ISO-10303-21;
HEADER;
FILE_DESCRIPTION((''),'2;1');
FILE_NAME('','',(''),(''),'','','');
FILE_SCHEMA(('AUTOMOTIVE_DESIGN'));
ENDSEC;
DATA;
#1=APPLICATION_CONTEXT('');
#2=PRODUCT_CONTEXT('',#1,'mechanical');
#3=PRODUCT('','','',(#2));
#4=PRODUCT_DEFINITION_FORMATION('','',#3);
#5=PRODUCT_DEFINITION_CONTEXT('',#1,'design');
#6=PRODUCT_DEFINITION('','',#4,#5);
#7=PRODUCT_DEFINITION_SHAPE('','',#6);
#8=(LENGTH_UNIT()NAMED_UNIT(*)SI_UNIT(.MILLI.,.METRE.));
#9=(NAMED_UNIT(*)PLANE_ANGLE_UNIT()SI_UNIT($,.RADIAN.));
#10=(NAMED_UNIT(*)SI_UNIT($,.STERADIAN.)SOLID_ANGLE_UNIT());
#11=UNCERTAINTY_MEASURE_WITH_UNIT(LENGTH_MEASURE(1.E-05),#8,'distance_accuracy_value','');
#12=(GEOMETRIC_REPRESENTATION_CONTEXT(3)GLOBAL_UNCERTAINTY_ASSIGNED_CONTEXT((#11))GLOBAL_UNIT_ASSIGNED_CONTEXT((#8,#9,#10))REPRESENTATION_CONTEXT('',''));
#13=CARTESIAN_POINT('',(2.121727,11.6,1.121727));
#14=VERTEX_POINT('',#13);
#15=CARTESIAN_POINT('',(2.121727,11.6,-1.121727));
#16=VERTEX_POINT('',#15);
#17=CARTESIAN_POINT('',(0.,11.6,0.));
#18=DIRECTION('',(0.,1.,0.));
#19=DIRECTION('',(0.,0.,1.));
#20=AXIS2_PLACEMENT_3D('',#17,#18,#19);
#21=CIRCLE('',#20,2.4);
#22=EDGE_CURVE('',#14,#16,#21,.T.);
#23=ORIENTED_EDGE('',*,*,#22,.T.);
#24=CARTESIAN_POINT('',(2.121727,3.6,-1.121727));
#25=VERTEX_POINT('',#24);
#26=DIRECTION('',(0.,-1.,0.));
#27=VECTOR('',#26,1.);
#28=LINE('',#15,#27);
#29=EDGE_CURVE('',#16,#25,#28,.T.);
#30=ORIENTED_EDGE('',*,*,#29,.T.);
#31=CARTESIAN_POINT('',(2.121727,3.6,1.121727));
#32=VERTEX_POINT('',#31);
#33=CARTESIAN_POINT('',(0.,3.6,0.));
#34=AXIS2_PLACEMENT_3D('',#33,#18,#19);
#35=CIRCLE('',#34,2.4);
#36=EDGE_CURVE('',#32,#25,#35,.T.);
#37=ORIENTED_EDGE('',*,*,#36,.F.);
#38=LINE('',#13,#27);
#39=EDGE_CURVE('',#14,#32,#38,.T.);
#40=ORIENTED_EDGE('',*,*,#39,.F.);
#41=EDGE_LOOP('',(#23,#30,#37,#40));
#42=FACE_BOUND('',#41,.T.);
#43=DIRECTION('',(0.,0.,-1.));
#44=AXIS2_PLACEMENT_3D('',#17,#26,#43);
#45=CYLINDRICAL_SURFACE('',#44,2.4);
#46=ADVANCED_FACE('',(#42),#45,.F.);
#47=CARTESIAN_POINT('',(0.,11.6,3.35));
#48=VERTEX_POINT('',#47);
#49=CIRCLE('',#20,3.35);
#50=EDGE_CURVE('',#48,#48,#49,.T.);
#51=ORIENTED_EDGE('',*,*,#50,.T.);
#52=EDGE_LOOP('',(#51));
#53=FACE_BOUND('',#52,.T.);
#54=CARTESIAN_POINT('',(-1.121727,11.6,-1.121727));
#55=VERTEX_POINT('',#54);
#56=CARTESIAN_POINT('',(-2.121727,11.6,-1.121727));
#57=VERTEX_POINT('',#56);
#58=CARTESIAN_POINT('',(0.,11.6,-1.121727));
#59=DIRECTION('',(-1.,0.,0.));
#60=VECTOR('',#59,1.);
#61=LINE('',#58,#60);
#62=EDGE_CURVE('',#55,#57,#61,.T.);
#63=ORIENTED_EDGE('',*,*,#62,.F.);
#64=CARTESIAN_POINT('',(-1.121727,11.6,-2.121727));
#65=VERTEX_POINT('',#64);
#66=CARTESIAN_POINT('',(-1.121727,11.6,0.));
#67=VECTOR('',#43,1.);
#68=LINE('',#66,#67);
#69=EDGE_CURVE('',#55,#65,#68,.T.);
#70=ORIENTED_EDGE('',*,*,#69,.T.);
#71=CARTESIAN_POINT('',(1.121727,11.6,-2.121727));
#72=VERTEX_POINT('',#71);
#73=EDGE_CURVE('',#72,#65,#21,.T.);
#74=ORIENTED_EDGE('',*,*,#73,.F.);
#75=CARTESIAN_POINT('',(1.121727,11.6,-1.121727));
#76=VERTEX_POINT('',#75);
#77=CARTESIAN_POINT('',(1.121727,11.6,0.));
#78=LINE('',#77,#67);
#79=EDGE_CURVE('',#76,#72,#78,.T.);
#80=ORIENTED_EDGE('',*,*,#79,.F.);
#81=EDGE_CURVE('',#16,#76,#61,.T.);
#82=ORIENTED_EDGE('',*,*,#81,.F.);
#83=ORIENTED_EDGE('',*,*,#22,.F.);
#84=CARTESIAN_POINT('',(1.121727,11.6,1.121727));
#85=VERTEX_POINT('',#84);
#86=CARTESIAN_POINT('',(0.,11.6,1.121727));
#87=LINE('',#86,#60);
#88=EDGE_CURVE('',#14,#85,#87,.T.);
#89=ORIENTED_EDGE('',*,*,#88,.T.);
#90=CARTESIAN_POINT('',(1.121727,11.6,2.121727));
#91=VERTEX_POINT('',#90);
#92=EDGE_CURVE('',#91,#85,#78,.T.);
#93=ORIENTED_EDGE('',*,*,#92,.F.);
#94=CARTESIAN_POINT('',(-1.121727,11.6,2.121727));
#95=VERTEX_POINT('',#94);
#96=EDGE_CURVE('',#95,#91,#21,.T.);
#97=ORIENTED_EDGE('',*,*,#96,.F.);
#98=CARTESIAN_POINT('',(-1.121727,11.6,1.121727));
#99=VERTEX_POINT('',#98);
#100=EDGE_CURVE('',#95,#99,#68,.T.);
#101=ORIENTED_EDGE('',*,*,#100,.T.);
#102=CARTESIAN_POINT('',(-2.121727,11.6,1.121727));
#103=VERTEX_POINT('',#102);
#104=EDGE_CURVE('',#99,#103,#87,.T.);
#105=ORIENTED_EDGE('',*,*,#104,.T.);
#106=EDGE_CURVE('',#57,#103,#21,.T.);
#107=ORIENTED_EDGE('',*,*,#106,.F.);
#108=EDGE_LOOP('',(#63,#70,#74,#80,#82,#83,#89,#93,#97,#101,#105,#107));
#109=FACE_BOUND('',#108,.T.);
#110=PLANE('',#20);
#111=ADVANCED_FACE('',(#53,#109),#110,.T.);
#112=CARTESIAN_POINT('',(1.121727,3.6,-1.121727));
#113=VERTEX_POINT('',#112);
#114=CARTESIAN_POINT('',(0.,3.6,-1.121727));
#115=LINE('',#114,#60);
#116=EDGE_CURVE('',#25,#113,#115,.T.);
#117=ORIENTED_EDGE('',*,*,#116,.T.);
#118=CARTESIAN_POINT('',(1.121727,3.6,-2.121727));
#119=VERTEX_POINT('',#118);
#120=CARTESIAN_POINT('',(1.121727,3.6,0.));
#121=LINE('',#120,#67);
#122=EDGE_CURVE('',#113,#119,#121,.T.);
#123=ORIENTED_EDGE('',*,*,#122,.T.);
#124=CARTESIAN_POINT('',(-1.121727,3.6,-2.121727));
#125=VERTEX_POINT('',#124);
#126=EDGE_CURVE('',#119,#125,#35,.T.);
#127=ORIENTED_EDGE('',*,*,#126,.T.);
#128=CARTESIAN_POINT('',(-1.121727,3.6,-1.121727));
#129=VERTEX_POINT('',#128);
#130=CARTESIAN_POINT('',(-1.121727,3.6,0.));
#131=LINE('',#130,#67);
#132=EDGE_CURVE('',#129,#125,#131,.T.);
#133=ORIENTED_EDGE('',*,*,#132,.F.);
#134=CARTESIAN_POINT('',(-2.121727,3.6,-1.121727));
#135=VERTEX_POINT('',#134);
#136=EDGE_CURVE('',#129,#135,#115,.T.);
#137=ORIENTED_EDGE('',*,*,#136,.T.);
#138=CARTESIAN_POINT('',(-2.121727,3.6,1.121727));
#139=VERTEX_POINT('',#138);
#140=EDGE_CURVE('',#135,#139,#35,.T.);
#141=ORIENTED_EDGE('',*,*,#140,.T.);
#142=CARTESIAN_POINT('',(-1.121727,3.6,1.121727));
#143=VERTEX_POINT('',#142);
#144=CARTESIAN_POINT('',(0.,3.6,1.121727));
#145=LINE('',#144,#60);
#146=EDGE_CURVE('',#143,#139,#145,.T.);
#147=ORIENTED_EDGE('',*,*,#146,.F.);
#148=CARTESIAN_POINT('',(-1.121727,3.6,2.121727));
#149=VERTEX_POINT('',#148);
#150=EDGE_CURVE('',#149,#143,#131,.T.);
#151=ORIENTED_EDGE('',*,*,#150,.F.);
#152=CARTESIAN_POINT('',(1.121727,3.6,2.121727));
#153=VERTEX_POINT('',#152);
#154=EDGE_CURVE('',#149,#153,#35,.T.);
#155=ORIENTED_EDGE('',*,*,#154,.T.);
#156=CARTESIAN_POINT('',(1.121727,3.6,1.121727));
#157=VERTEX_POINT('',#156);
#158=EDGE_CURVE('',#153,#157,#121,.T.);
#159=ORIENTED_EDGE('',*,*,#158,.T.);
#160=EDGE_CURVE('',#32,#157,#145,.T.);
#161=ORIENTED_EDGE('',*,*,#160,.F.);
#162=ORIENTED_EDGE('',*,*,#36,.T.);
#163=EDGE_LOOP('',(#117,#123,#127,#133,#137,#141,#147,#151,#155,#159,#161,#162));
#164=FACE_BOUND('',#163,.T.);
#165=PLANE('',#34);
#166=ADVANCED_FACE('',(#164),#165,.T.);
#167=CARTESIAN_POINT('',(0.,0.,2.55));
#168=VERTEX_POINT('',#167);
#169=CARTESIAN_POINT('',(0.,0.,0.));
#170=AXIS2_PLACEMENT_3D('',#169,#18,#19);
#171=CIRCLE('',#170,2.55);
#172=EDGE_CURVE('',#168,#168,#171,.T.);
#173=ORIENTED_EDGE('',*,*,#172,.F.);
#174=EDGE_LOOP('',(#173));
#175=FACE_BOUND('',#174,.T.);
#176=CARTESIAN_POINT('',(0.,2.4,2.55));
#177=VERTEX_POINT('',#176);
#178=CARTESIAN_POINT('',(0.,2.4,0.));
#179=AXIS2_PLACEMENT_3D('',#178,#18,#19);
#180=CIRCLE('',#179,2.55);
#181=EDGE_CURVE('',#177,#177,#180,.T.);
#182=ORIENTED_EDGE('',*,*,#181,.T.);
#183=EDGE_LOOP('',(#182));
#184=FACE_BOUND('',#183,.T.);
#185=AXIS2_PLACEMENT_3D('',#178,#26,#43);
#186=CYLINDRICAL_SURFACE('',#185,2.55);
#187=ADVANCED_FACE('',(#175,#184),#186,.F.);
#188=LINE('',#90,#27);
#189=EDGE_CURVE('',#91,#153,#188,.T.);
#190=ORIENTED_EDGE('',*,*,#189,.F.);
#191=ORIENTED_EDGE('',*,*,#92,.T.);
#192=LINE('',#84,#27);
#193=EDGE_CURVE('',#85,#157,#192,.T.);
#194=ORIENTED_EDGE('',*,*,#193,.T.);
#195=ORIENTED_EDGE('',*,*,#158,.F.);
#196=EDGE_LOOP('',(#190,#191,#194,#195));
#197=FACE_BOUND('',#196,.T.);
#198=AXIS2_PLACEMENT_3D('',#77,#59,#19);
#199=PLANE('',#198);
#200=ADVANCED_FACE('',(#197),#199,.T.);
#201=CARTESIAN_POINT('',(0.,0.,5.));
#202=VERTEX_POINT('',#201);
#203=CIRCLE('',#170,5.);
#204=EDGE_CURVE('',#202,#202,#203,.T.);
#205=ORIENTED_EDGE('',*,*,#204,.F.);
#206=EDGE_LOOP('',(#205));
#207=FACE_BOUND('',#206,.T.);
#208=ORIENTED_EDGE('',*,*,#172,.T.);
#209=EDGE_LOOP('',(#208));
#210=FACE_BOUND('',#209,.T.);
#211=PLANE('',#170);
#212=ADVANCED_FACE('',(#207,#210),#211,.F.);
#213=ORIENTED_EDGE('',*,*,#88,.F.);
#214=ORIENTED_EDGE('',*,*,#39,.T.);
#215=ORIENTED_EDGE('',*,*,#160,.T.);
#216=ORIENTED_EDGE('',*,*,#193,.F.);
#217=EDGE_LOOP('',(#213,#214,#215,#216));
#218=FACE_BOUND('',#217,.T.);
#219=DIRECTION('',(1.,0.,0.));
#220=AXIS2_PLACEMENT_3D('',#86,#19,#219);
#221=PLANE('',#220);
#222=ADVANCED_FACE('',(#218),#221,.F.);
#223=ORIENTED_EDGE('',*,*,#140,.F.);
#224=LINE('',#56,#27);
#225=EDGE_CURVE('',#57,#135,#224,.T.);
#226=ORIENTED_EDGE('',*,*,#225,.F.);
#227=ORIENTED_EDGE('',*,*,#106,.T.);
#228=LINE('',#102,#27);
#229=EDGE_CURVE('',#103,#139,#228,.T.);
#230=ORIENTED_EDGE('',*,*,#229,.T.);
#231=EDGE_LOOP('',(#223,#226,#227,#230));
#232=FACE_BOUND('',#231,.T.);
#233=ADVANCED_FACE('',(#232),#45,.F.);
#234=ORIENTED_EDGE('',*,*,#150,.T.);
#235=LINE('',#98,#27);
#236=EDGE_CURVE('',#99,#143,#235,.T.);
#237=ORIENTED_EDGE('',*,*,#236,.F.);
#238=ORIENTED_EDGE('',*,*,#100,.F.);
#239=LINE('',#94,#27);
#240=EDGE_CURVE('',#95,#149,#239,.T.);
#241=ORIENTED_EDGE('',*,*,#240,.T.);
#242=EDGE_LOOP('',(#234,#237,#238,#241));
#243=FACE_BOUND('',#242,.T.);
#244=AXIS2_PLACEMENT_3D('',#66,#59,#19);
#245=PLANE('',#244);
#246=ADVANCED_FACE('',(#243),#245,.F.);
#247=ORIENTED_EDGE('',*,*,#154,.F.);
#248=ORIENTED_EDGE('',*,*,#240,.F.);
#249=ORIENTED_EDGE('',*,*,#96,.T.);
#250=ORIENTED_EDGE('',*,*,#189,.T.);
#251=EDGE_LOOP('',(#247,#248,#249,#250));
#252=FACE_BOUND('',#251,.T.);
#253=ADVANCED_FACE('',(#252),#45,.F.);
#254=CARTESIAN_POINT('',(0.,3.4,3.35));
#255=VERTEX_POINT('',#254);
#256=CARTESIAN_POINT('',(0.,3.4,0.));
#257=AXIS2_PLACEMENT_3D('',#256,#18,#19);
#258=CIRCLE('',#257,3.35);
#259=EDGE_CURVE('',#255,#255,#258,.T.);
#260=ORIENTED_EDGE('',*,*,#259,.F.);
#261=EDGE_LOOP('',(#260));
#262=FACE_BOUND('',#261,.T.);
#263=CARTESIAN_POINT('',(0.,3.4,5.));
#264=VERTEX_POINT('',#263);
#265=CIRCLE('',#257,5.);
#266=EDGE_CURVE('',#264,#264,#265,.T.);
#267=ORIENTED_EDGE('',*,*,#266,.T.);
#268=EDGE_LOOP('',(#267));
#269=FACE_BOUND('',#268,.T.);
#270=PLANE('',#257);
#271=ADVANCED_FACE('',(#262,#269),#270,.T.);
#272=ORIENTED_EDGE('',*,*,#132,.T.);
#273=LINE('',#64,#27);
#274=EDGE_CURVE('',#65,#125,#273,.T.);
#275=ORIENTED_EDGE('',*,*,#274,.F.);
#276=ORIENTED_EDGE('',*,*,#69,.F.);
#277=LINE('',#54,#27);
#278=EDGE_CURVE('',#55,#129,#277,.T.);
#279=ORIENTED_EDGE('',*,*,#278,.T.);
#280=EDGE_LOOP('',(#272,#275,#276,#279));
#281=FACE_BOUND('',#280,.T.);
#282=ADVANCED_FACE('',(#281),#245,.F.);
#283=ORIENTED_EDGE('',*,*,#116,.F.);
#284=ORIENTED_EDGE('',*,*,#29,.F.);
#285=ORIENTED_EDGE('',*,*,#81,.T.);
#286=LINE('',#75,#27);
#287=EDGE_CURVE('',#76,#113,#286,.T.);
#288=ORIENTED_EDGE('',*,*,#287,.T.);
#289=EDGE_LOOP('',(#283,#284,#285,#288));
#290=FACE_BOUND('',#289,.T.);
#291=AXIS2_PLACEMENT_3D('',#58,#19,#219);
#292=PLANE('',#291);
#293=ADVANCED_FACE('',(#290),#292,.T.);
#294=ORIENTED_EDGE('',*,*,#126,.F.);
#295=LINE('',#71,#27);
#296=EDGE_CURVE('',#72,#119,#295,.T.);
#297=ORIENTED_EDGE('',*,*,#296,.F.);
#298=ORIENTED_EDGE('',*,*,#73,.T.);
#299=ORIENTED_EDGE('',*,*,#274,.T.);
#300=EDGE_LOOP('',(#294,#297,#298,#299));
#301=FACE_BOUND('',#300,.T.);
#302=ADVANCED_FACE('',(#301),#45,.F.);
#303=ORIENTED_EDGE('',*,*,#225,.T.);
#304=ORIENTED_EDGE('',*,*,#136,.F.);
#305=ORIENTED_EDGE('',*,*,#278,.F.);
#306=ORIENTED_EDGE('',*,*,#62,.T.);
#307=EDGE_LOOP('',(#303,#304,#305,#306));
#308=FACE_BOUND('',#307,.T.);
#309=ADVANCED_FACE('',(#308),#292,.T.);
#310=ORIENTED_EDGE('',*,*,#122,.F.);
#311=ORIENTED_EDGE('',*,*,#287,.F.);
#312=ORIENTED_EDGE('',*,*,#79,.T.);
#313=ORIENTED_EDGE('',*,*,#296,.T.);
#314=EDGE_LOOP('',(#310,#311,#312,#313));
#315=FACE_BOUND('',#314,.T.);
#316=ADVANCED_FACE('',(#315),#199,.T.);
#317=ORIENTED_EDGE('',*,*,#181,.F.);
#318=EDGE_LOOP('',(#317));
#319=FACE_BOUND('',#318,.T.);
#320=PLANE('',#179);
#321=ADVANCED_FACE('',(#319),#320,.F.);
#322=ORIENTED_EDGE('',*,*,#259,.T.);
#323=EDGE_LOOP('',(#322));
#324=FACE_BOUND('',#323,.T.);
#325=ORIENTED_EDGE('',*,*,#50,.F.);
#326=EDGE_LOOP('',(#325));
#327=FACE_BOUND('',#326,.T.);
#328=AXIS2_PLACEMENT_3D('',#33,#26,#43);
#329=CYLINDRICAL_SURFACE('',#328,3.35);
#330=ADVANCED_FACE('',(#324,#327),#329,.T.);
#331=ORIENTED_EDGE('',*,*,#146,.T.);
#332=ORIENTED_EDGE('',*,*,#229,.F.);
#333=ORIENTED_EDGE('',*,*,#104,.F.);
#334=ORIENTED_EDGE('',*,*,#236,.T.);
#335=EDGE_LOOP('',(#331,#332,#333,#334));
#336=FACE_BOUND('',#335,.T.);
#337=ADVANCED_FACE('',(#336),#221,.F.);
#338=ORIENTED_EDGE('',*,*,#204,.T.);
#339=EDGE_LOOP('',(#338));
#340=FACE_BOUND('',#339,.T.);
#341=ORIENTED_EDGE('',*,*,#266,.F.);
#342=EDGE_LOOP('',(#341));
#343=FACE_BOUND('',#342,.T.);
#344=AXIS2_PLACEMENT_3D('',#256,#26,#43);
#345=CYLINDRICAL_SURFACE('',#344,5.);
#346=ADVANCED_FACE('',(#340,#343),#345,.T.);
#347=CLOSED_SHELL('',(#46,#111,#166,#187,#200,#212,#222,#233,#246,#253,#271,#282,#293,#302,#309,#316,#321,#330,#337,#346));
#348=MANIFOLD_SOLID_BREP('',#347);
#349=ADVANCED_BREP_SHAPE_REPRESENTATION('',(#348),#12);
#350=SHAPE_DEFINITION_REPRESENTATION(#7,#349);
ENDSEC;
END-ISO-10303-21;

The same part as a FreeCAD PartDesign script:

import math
import FreeCAD as App
import Part
import Sketcher

V = App.Vector
Q = App.Units.Quantity

doc = App.newDocument("Part")
body = doc.addObject("PartDesign::Body", "Body")

sketch1 = body.newObject("Sketcher::SketchObject", "Sketch")
sketch1.AttachmentSupport = (doc.getObject("XZ_Plane"), [""])
sketch1.MapMode = "FlatFace"
sketch1.addGeometry(Part.Circle(V(0, 0, 0), V(0, 0, 1), 5), False)
sketch1.addConstraint([
    Sketcher.Constraint("Coincident", 0, 3, -1, 1),
    Sketcher.Constraint("Diameter", 0, Q("10 mm")),
])
pad1 = body.newObject("PartDesign::Pad", "Pad")
pad1.Profile = sketch1
pad1.Length = 3.4
pad1.Reversed = True

sketch2 = body.newObject("Sketcher::SketchObject", "Sketch001")
sketch2.AttachmentSupport = (doc.getObject("XZ_Plane"), [""])
sketch2.MapMode = "FlatFace"
sketch2.addGeometry(Part.Circle(V(0, 0, 0), V(0, 0, 1), 2.5), False)
sketch2.addConstraint([
    Sketcher.Constraint("Coincident", 0, 3, -1, 1),
    Sketcher.Constraint("Diameter", 0, Q("5.1 mm")),
])
pocket1 = body.newObject("PartDesign::Pocket", "Pocket")
pocket1.Profile = sketch2
pocket1.Length = 2.4

sketch3 = body.newObject("Sketcher::SketchObject", "Sketch002")
sketch3.AttachmentSupport = (doc.getObject("XZ_Plane"), [""])
sketch3.MapMode = "FlatFace"
sketch3.AttachmentOffset = App.Placement(V(0, 0, -3.4), App.Rotation())
sketch3.addGeometry(Part.Circle(V(0, 0, 0), V(0, 0, 1), 3.4), False)
sketch3.addConstraint([
    Sketcher.Constraint("Coincident", 0, 3, -1, 1),
    Sketcher.Constraint("Diameter", 0, Q("6.7 mm")),
])
pad2 = body.newObject("PartDesign::Pad", "Pad001")
pad2.Profile = sketch3
pad2.Length = 0.2
pad2.Reversed = True

sketch4 = body.newObject("Sketcher::SketchObject", "Sketch003")
sketch4.AttachmentSupport = (doc.getObject("XZ_Plane"), [""])
sketch4.MapMode = "FlatFace"
sketch4.AttachmentOffset = App.Placement(V(0, 0, -3.6), App.Rotation())
sketch4.addGeometry([
    Part.Circle(V(0, 0, 0), V(0, 0, 1), 3.4),
    Part.ArcOfCircle(Part.Circle(V(0, 0, 0), V(0, 0, 1), 2.4), math.radians(-28), math.radians(28)),
    Part.LineSegment(V(2.1, 1.1, 0), V(1.1, 1.1, 0)),
    Part.LineSegment(V(1.1, 1.1, 0), V(1.1, 2.1, 0)),
    Part.ArcOfCircle(Part.Circle(V(0, 0, 0), V(0, 0, 1), 2.4), math.radians(62), math.radians(118)),
    Part.LineSegment(V(-1.1, 2.1, 0), V(-1.1, 1.1, 0)),
    Part.LineSegment(V(-1.1, 1.1, 0), V(-2.1, 1.1, 0)),
    Part.ArcOfCircle(Part.Circle(V(0, 0, 0), V(0, 0, 1), 2.4), math.radians(152), math.radians(208)),
    Part.LineSegment(V(-2.1, -1.1, 0), V(-1.1, -1.1, 0)),
    Part.LineSegment(V(-1.1, -1.1, 0), V(-1.1, -2.1, 0)),
    Part.ArcOfCircle(Part.Circle(V(0, 0, 0), V(0, 0, 1), 2.4), math.radians(-118), math.radians(-62)),
    Part.LineSegment(V(1.1, -2.1, 0), V(1.1, -1.1, 0)),
    Part.LineSegment(V(1.1, -1.1, 0), V(2.1, -1.1, 0)),
], False)
sketch4.addConstraint([
    Sketcher.Constraint("Coincident", 1, 2, 2, 1),
    Sketcher.Constraint("Coincident", 2, 2, 3, 1),
    Sketcher.Constraint("Coincident", 3, 2, 4, 1),
    Sketcher.Constraint("Coincident", 4, 2, 5, 1),
    Sketcher.Constraint("Coincident", 5, 2, 6, 1),
    Sketcher.Constraint("Coincident", 6, 2, 7, 1),
    Sketcher.Constraint("Coincident", 7, 2, 8, 1),
    Sketcher.Constraint("Coincident", 8, 2, 9, 1),
    Sketcher.Constraint("Coincident", 9, 2, 10, 1),
    Sketcher.Constraint("Coincident", 10, 2, 11, 1),
    Sketcher.Constraint("Coincident", 11, 2, 12, 1),
    Sketcher.Constraint("Coincident", 12, 2, 1, 1),
    Sketcher.Constraint("Horizontal", 2),
    Sketcher.Constraint("Vertical", 3),
    Sketcher.Constraint("Vertical", 5),
    Sketcher.Constraint("Horizontal", 6),
    Sketcher.Constraint("Horizontal", 8),
    Sketcher.Constraint("Vertical", 9),
    Sketcher.Constraint("Vertical", 11),
    Sketcher.Constraint("Horizontal", 12),
    Sketcher.Constraint("Coincident", 0, 3, -1, 1),
    Sketcher.Constraint("Coincident", 1, 3, -1, 1),
    Sketcher.Constraint("Coincident", 4, 3, -1, 1),
    Sketcher.Constraint("Coincident", 7, 3, -1, 1),
    Sketcher.Constraint("Coincident", 10, 3, -1, 1),
    Sketcher.Constraint("Equal", 1, 4),
    Sketcher.Constraint("Equal", 4, 7),
    Sketcher.Constraint("Equal", 7, 10),
    Sketcher.Constraint("Symmetric", 2, 2, 8, 2, -1, 1),
    Sketcher.Constraint("Symmetric", 5, 2, 11, 2, -1, 1),
    Sketcher.Constraint("Symmetric", 2, 2, 5, 2, -2),
    Sketcher.Constraint("Equal", 12, 3),
    Sketcher.Constraint("Diameter", 0, Q("6.7 mm")),
    Sketcher.Constraint("Radius", 1, Q("2.4 mm")),
    Sketcher.Constraint("DistanceX", 2, 2, 2, 1, Q("1 mm")),
])
pad3 = body.newObject("PartDesign::Pad", "Pad002")
pad3.Profile = sketch4
pad3.Length = 8
pad3.Reversed = True

doc.recompute()
